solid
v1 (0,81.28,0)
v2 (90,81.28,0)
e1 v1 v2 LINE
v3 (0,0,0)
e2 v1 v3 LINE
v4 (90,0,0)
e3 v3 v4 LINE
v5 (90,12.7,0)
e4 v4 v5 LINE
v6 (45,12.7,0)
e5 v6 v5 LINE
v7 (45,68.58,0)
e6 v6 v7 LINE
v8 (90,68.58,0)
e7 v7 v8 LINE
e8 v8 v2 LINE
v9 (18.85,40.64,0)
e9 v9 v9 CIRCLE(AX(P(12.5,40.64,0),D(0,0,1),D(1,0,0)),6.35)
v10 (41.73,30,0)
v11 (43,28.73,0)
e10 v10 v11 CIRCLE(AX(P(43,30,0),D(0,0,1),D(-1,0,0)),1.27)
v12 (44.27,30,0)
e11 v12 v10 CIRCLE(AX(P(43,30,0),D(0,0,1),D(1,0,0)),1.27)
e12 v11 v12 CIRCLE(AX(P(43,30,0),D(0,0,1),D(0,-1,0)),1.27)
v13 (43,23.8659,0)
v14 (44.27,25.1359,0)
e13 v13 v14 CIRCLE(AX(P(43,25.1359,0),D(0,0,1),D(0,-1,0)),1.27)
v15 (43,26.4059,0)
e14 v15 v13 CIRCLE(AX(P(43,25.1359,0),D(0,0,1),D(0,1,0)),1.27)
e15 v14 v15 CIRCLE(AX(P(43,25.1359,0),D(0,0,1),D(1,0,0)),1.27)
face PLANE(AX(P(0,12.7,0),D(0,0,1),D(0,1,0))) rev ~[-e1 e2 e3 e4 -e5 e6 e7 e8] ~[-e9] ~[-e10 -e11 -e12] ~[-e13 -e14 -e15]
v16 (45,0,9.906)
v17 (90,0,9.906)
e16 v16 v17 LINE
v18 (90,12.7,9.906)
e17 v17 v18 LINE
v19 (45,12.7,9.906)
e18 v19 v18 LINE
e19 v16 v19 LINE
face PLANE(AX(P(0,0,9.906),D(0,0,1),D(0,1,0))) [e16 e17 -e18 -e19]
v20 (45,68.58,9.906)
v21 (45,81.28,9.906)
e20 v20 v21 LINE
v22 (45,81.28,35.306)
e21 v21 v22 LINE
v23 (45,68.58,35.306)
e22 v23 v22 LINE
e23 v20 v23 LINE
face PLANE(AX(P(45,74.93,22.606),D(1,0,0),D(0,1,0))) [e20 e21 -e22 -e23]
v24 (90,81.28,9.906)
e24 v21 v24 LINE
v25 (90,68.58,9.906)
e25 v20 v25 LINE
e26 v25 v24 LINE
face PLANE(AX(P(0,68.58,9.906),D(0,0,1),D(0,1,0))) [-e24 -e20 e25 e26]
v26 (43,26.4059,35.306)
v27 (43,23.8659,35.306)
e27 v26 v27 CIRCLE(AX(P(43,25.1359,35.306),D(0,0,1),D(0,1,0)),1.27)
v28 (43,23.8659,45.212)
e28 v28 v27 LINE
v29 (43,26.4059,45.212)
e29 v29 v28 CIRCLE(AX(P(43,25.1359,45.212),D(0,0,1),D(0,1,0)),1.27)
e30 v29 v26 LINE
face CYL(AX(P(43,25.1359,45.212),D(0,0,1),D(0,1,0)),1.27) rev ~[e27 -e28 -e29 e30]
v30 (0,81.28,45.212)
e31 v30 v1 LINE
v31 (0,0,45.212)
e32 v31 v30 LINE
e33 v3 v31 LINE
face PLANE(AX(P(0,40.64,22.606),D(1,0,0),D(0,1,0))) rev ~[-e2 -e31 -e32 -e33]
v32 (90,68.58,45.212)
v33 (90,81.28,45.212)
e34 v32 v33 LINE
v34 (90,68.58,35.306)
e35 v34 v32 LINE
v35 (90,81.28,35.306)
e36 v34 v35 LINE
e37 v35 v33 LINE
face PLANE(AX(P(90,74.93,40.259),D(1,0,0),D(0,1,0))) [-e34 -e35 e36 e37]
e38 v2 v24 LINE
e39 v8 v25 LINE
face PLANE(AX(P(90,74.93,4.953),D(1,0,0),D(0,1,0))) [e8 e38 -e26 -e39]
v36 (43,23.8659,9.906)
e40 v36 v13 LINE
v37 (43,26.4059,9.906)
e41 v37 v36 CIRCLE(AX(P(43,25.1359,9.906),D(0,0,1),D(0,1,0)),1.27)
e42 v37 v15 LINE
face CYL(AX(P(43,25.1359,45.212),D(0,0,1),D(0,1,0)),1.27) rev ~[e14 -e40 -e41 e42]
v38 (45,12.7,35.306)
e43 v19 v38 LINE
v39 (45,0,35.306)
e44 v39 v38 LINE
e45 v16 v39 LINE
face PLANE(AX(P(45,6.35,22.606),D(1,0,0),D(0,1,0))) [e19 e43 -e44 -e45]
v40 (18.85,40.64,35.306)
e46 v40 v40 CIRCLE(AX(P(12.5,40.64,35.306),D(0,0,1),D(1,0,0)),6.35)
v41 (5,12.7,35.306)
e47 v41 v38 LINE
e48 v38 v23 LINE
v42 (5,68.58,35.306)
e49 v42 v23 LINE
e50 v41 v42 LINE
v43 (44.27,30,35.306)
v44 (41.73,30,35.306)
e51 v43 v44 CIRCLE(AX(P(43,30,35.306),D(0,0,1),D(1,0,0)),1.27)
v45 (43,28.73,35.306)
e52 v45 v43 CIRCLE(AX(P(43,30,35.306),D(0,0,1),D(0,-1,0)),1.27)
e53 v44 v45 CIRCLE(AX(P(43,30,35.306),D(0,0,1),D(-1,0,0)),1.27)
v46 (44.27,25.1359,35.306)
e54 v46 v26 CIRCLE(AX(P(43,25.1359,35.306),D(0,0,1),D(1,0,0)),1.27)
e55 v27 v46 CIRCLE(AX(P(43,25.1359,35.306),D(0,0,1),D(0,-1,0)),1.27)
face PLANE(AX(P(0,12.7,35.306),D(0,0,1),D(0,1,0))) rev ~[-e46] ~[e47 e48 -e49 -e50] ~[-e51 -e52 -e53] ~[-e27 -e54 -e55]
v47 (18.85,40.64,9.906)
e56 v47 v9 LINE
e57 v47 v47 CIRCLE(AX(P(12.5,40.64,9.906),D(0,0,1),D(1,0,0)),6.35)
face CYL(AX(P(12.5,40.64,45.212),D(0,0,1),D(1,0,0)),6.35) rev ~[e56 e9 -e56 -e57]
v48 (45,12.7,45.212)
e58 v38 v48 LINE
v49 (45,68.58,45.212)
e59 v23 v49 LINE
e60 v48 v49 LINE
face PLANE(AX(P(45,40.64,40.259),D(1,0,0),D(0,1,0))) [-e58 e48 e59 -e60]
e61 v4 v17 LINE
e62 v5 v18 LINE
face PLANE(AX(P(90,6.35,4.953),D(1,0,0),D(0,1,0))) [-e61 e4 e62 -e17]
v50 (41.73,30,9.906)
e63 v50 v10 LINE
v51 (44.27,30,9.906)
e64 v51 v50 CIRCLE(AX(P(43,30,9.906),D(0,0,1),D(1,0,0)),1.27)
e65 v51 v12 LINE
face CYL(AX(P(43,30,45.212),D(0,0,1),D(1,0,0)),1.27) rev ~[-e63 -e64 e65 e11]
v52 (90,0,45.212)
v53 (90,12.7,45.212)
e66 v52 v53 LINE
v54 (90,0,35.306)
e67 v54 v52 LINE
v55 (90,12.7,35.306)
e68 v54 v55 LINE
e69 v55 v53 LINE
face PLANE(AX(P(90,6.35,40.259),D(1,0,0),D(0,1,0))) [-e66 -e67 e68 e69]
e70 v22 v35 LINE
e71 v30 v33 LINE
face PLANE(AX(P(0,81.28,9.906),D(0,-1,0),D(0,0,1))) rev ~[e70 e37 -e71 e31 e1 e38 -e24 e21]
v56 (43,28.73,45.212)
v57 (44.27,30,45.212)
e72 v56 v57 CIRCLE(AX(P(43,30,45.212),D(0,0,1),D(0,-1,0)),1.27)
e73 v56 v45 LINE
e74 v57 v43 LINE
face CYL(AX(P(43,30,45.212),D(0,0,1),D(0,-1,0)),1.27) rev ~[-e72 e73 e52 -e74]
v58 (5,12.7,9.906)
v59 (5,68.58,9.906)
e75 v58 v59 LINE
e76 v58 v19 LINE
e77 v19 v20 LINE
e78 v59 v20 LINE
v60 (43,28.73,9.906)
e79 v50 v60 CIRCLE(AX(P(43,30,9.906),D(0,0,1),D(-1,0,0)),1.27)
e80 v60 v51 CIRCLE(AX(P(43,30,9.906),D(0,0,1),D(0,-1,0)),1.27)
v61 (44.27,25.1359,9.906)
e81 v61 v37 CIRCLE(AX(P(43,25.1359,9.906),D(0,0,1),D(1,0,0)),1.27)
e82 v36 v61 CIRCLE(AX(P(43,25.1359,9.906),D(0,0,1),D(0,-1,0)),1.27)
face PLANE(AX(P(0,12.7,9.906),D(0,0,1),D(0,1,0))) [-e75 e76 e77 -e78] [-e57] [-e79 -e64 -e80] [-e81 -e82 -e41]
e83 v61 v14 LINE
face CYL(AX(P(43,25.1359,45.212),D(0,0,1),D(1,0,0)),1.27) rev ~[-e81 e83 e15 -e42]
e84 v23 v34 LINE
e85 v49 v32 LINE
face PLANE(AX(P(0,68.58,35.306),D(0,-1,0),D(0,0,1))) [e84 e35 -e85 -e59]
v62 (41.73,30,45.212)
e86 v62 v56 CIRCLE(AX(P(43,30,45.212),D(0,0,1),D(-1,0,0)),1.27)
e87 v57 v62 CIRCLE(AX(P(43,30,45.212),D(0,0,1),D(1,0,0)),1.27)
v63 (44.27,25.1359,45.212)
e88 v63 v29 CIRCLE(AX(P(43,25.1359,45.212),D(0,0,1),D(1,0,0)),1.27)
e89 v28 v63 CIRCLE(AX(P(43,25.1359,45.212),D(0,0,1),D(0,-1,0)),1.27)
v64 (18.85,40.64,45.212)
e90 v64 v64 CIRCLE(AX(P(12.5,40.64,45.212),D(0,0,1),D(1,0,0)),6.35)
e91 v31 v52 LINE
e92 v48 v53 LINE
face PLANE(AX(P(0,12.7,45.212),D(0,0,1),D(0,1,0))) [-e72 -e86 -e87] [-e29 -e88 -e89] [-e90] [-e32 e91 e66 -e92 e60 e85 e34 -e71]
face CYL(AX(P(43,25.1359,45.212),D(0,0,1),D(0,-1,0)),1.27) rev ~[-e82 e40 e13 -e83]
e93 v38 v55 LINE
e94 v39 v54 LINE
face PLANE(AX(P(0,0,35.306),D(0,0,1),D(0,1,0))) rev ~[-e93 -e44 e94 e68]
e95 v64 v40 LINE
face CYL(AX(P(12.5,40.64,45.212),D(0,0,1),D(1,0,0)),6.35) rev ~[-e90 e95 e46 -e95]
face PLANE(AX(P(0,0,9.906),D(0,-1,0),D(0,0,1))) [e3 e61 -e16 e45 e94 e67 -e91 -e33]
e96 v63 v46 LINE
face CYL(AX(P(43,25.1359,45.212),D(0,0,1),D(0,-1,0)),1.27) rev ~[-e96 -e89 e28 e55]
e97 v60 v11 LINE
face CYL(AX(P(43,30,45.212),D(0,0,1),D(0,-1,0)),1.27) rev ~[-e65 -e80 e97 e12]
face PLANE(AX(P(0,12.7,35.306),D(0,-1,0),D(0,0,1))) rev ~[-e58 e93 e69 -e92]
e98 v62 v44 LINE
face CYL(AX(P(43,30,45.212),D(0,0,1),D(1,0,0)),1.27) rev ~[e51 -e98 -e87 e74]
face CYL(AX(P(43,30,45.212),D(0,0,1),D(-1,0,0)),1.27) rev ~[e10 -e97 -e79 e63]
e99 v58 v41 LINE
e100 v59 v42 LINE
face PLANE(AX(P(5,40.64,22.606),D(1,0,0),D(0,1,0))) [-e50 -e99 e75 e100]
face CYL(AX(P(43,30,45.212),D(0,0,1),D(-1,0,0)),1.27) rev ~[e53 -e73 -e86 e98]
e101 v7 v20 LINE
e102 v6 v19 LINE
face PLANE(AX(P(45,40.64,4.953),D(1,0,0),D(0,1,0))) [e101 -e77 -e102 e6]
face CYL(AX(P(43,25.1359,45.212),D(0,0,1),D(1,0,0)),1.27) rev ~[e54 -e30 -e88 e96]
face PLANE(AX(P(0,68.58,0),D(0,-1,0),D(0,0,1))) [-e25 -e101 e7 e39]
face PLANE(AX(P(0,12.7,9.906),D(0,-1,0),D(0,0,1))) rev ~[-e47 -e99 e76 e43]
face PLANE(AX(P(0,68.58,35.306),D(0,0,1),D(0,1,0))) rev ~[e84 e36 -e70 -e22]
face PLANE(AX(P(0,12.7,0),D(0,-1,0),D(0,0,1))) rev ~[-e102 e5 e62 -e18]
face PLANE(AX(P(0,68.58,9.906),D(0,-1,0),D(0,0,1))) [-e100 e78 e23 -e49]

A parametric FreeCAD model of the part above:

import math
import FreeCAD as App
import Part
import Sketcher

V = App.Vector
Q = App.Units.Quantity

doc = App.newDocument("Part")
body = doc.addObject("PartDesign::Body", "Body")

# Sketch on YZ plane
sketch1 = body.newObject("Sketcher::SketchObject", "Sketch")
sketch1.AttachmentSupport = (doc.getObject("YZ_Plane"), [""])
sketch1.MapMode = "FlatFace"
sketch1.addGeometry([
    Part.LineSegment(V(68.58, 9.906, 0), V(68.58, 0, 0)),
    Part.LineSegment(V(68.58, 0, 0), V(81.28, 0, 0)),
    Part.LineSegment(V(81.28, 0, 0), V(81.28, 9.906, 0)),
    Part.LineSegment(V(81.28, 9.906, 0), V(68.58, 9.906, 0)),
], False)
sketch1.addConstraint([
    Sketcher.Constraint("Coincident", 0, 2, 1, 1),
    Sketcher.Constraint("Coincident", 1, 2, 2, 1),
    Sketcher.Constraint("Coincident", 2, 2, 3, 1),
    Sketcher.Constraint("Coincident", 3, 2, 0, 1),
    Sketcher.Constraint("Vertical", 0),
    Sketcher.Constraint("Horizontal", 1),
    Sketcher.Constraint("Vertical", 2),
    Sketcher.Constraint("Horizontal", 3),
    Sketcher.Constraint("PointOnObject", 0, 2, -1),
    Sketcher.Constraint("DistanceX", 1, 1, 1, 2, Q("0.5 in")),
    Sketcher.Constraint("DistanceY", 0, 2, 0, 1, Q("0.39 in")),
    Sketcher.Constraint("DistanceX", -1, 1, 0, 2, Q("2.7 in")),
])
pad1 = body.newObject("PartDesign::Pad", "Pad")
pad1.Profile = sketch1
pad1.Length = 90
body2 = doc.addObject("PartDesign::Body", "Body001")

# Sketch on YZ plane
sketch2 = body2.newObject("Sketcher::SketchObject", "Sketch001")
sketch2.AttachmentSupport = (doc.getObject("YZ_Plane001"), [""])
sketch2.MapMode = "FlatFace"
sketch2.addGeometry([
    Part.LineSegment(V(0, 45.212, 0), V(0, 35.306, 0)),
    Part.LineSegment(V(0, 35.306, 0), V(12.7, 35.306, 0)),
    Part.LineSegment(V(12.7, 35.306, 0), V(12.7, 45.212, 0)),
    Part.LineSegment(V(12.7, 45.212, 0), V(0, 45.212, 0)),
], False)
sketch2.addConstraint([
    Sketcher.Constraint("Coincident", 0, 2, 1, 1),
    Sketcher.Constraint("Coincident", 1, 2, 2, 1),
    Sketcher.Constraint("Coincident", 2, 2, 3, 1),
    Sketcher.Constraint("Coincident", 3, 2, 0, 1),
    Sketcher.Constraint("Vertical", 0),
    Sketcher.Constraint("Horizontal", 1),
    Sketcher.Constraint("Vertical", 2),
    Sketcher.Constraint("Horizontal", 3),
    Sketcher.Constraint("PointOnObject", 0, 2, -2),
    Sketcher.Constraint("DistanceX", 1, 1, 1, 2, Q("0.5 in")),
    Sketcher.Constraint("DistanceY", 0, 2, 0, 1, Q("0.39 in")),
    Sketcher.Constraint("DistanceY", -1, 1, 0, 2, Q("1.39 in")),
])
pad2 = body2.newObject("PartDesign::Pad", "Pad001")
pad2.Profile = sketch2
pad2.Length = 90
body3 = doc.addObject("PartDesign::Body", "Body002")

# Sketch on YZ plane
sketch3 = body3.newObject("Sketcher::SketchObject", "Sketch002")
sketch3.AttachmentSupport = (doc.getObject("YZ_Plane002"), [""])
sketch3.MapMode = "FlatFace"
sketch3.addGeometry([
    Part.LineSegment(V(0, 9.906, 0), V(0, 0, 0)),
    Part.LineSegment(V(0, 0, 0), V(12.7, 0, 0)),
    Part.LineSegment(V(12.7, 0, 0), V(12.7, 9.906, 0)),
    Part.LineSegment(V(12.7, 9.906, 0), V(0, 9.906, 0)),
], False)
sketch3.addConstraint([
    Sketcher.Constraint("Coincident", 0, 2, 1, 1),
    Sketcher.Constraint("Coincident", 1, 2, 2, 1),
    Sketcher.Constraint("Coincident", 2, 2, 3, 1),
    Sketcher.Constraint("Coincident", 3, 2, 0, 1),
    Sketcher.Constraint("Vertical", 0),
    Sketcher.Constraint("Horizontal", 1),
    Sketcher.Constraint("Vertical", 2),
    Sketcher.Constraint("Horizontal", 3),
    Sketcher.Constraint("Coincident", 0, 2, -1, 1),
    Sketcher.Constraint("DistanceX", 1, 1, 1, 2, Q("0.5 in")),
    Sketcher.Constraint("DistanceY", 0, 2, 0, 1, Q("0.39 in")),
])
pad3 = body3.newObject("PartDesign::Pad", "Pad002")
pad3.Profile = sketch3
pad3.Length = 90
body4 = doc.addObject("PartDesign::Body", "Body003")

# Sketch on YZ plane
sketch4 = body4.newObject("Sketcher::SketchObject", "Sketch003")
sketch4.AttachmentSupport = (doc.getObject("YZ_Plane003"), [""])
sketch4.MapMode = "FlatFace"
sketch4.addGeometry([
    Part.LineSegment(V(68.58, 45.212, 0), V(68.58, 35.306, 0)),
    Part.LineSegment(V(68.58, 35.306, 0), V(81.28, 35.306, 0)),
    Part.LineSegment(V(81.28, 35.306, 0), V(81.28, 45.212, 0)),
    Part.LineSegment(V(81.28, 45.212, 0), V(68.58, 45.212, 0)),
], False)
sketch4.addConstraint([
    Sketcher.Constraint("Coincident", 0, 2, 1, 1),
    Sketcher.Constraint("Coincident", 1, 2, 2, 1),
    Sketcher.Constraint("Coincident", 2, 2, 3, 1),
    Sketcher.Constraint("Coincident", 3, 2, 0, 1),
    Sketcher.Constraint("Vertical", 0),
    Sketcher.Constraint("Horizontal", 1),
    Sketcher.Constraint("Vertical", 2),
    Sketcher.Constraint("Horizontal", 3),
    Sketcher.Constraint("DistanceX", 1, 1, 1, 2, Q("0.5 in")),
    Sketcher.Constraint("DistanceY", 0, 2, 0, 1, Q("0.39 in")),
    Sketcher.Constraint("DistanceX", -1, 1, 0, 2, Q("2.7 in")),
    Sketcher.Constraint("DistanceY", -1, 1, 0, 2, Q("1.39 in")),
])
pad4 = body4.newObject("PartDesign::Pad", "Pad003")
pad4.Profile = sketch4
pad4.Length = 90
body.AllowCompound = True
doc.recompute()

boolean = body.newObject("PartDesign::Boolean", "Boolean")
boolean.Type = "Fuse"
boolean.addObjects([body2])
doc.recompute()

boolean2 = body.newObject("PartDesign::Boolean", "Boolean001")
boolean2.Type = "Fuse"
boolean2.addObjects([body3])
doc.recompute()

boolean3 = body.newObject("PartDesign::Boolean", "Boolean002")
boolean3.Type = "Fuse"
boolean3.addObjects([body4])

# Sketch on YZ plane
sketch5 = body.newObject("Sketcher::SketchObject", "Sketch004")
sketch5.AttachmentSupport = (doc.getObject("YZ_Plane"), [""])
sketch5.MapMode = "FlatFace"
sketch5.addGeometry([
    Part.LineSegment(V(12.7, 45.212, 0), V(12.7, 35.306, 0)),  # 0
    Part.LineSegment(V(12.7, 35.306, 0), V(68.58, 35.306, 0)),  # 1
    Part.LineSegment(V(68.58, 35.306, 0), V(68.58, 45.212, 0)),  # 2
    Part.LineSegment(V(68.58, 45.212, 0), V(12.7, 45.212, 0)),  # 3
    Part.LineSegment(V(0, 35.306, 0), V(0, 9.906, 0)),  # 4
    Part.LineSegment(V(0, 9.906, 0), V(12.7, 9.906, 0)),  # 5
    Part.LineSegment(V(12.7, 9.906, 0), V(12.7, 35.306, 0)),  # 6
    Part.LineSegment(V(12.7, 35.306, 0), V(0, 35.306, 0)),  # 7
    Part.LineSegment(V(68.58, 35.306, 0), V(68.58, 9.906, 0)),  # 8
    Part.LineSegment(V(68.58, 9.906, 0), V(81.28, 9.906, 0)),  # 9
    Part.LineSegment(V(81.28, 9.906, 0), V(81.28, 35.306, 0)),  # 10
    Part.LineSegment(V(81.28, 35.306, 0), V(68.58, 35.306, 0)),  # 11
    Part.LineSegment(V(12.7, 9.906, 0), V(12.7, 0, 0)),  # 12
    Part.LineSegment(V(12.7, 0, 0), V(68.58, 0, 0)),  # 13
    Part.LineSegment(V(68.58, 0, 0), V(68.58, 9.906, 0)),  # 14
    Part.LineSegment(V(68.58, 9.906, 0), V(12.7, 9.906, 0)),  # 15
], False)
sketch5.addConstraint([
    Sketcher.Constraint("Coincident", 0, 2, 1, 1),
    Sketcher.Constraint("Coincident", 1, 2, 2, 1),
    Sketcher.Constraint("Coincident", 2, 2, 3, 1),
    Sketcher.Constraint("Coincident", 3, 2, 0, 1),
    Sketcher.Constraint("Coincident", 4, 2, 5, 1),
    Sketcher.Constraint("Coincident", 5, 2, 6, 1),
    Sketcher.Constraint("Coincident", 6, 2, 7, 1),
    Sketcher.Constraint("Coincident", 7, 2, 4, 1),
    Sketcher.Constraint("Coincident", 8, 2, 9, 1),
    Sketcher.Constraint("Coincident", 9, 2, 10, 1),
    Sketcher.Constraint("Coincident", 10, 2, 11, 1),
    Sketcher.Constraint("Coincident", 11, 2, 8, 1),
    Sketcher.Constraint("Coincident", 12, 2, 13, 1),
    Sketcher.Constraint("Coincident", 13, 2, 14, 1),
    Sketcher.Constraint("Coincident", 14, 2, 15, 1),
    Sketcher.Constraint("Coincident", 15, 2, 12, 1),
    Sketcher.Constraint("Vertical", 0),
    Sketcher.Constraint("Horizontal", 1),
    Sketcher.Constraint("Vertical", 2),
    Sketcher.Constraint("Horizontal", 3),
    Sketcher.Constraint("Vertical", 4),
    Sketcher.Constraint("Horizontal", 5),
    Sketcher.Constraint("Vertical", 6),
    Sketcher.Constraint("Horizontal", 7),
    Sketcher.Constraint("Vertical", 8),
    Sketcher.Constraint("Horizontal", 9),
    Sketcher.Constraint("Vertical", 10),
    Sketcher.Constraint("Horizontal", 11),
    Sketcher.Constraint("Vertical", 12),
    Sketcher.Constraint("Horizontal", 13),
    Sketcher.Constraint("Vertical", 14),
    Sketcher.Constraint("Horizontal", 15),
    Sketcher.Constraint("Coincident", 6, 2, 0, 2),
    Sketcher.Constraint("Coincident", 11, 2, 1, 2),
    Sketcher.Constraint("Coincident", 14, 2, 8, 2),
    Sketcher.Constraint("Coincident", 15, 2, 5, 2),
    Sketcher.Constraint("PointOnObject", 4, 2, -2),
    Sketcher.Constraint("PointOnObject", 12, 2, -1),
    Sketcher.Constraint("Equal", 7, 9),
    Sketcher.Constraint("Equal", 2, 12),
    Sketcher.Constraint("DistanceY", 4, 2, 4, 1, Q("1 in")),
    Sketcher.Constraint("DistanceX", 1, 1, 1, 2, Q("2.2 in")),
    Sketcher.Constraint("DistanceX", 5, 1, 5, 2, Q("0.5 in")),
    Sketcher.Constraint("DistanceY", 0, 2, 0, 1, Q("0.39 in")),
])
pad5 = body.newObject("PartDesign::Pad", "Pad004")
pad5.Profile = sketch5
pad5.Length = 45

# Sketch on YZ plane
sketch6 = body.newObject("Sketcher::SketchObject", "Sketch005")
sketch6.AttachmentSupport = (doc.getObject("YZ_Plane"), [""])
sketch6.MapMode = "FlatFace"
sketch6.addGeometry([
    Part.LineSegment(V(12.7, 35.306, 0), V(12.7, 9.906, 0)),
    Part.LineSegment(V(12.7, 9.906, 0), V(68.58, 9.906, 0)),
    Part.LineSegment(V(68.58, 9.906, 0), V(68.58, 35.306, 0)),
    Part.LineSegment(V(68.58, 35.306, 0), V(12.7, 35.306, 0)),
], False)
sketch6.addConstraint([
    Sketcher.Constraint("Coincident", 0, 2, 1, 1),
    Sketcher.Constraint("Coincident", 1, 2, 2, 1),
    Sketcher.Constraint("Coincident", 2, 2, 3, 1),
    Sketcher.Constraint("Coincident", 3, 2, 0, 1),
    Sketcher.Constraint("Vertical", 0),
    Sketcher.Constraint("Horizontal", 1),
    Sketcher.Constraint("Vertical", 2),
    Sketcher.Constraint("Horizontal", 3),
    Sketcher.Constraint("DistanceY", 0, 2, 0, 1, Q("1 in")),
    Sketcher.Constraint("DistanceX", 1, 1, 1, 2, Q("2.2 in")),
    Sketcher.Constraint("DistanceX", -1, 1, 0, 2, Q("0.5 in")),
    Sketcher.Constraint("DistanceY", -1, 1, 0, 2, Q("0.39 in")),
])
pad6 = body.newObject("PartDesign::Pad", "Pad005")
pad6.Profile = sketch6
pad6.Length = 5

# Sketch on XY plane
sketch7 = body.newObject("Sketcher::SketchObject", "Sketch006")
sketch7.AttachmentSupport = (doc.getObject("XY_Plane"), [""])
sketch7.MapMode = "FlatFace"
sketch7.AttachmentOffset = App.Placement(V(0, 0, 1.78 * 25.4), App.Rotation())
sketch7.addGeometry([
    Part.ArcOfCircle(Part.Circle(V(43, 30, 0), V(0, 0, 1), 1.27), math.radians(0), math.radians(180)),  # 0
    Part.ArcOfCircle(Part.Circle(V(43, 30, 0), V(0, 0, 1), 1.27), math.radians(180), math.radians(270)),  # 1
    Part.ArcOfCircle(Part.Circle(V(43, 30, 0), V(0, 0, 1), 1.27), math.radians(-90), math.radians(0)),  # 2
    Part.Circle(V(12.5, 40.64, 0), V(0, 0, 1), 6.35),  # 3
    Part.ArcOfCircle(Part.Circle(V(43, 25.1359, 0), V(0, 0, 1), 1.27), math.radians(0), math.radians(90)),  # 4
    Part.ArcOfCircle(Part.Circle(V(43, 25.1359, 0), V(0, 0, 1), 1.27), math.radians(90), math.radians(270)),  # 5
    Part.ArcOfCircle(Part.Circle(V(43, 25.1359, 0), V(0, 0, 1), 1.27), math.radians(-90), math.radians(0)),  # 6
], False)
sketch7.addConstraint([
    Sketcher.Constraint("Tangent", 0, 2, 1, 1),
    Sketcher.Constraint("Tangent", 1, 2, 2, 1),
    Sketcher.Constraint("Tangent", 2, 2, 0, 1),
    Sketcher.Constraint("Tangent", 4, 2, 5, 1),
    Sketcher.Constraint("Tangent", 5, 2, 6, 1),
    Sketcher.Constraint("Tangent", 6, 2, 4, 1),
    Sketcher.Constraint("Equal", 2, 4),
    Sketcher.Constraint("Horizontal", 2, 3, 0, 2),
    Sketcher.Constraint("Horizontal", 0, 2, 2, 2),
    Sketcher.Constraint("Horizontal", 5, 3, 6, 2),
    Sketcher.Constraint("Vertical", 2, 3, 4, 3),
    Sketcher.Constraint("Vertical", 6, 3, 1, 2),
    Sketcher.Constraint("Vertical", 1, 2, 4, 2),
    Sketcher.Constraint("Vertical", 4, 2, 5, 2),
    Sketcher.Constraint("Diameter", 3, Q("0.5 in")),
    Sketcher.Constraint("Radius", 0, Q("0.05 in")),
    Sketcher.Constraint("DistanceY", -1, 1, 3, 3, Q("1.6 in")),
    Sketcher.Constraint("DistanceY", 4, 3, 0, 3, Q("0.1915 in")),
    Sketcher.Constraint("DistanceX", -1, 1, 0, 3, 43.0),
    Sketcher.Constraint("DistanceY", -1, 1, 0, 3, 30.0),
    Sketcher.Constraint("DistanceX", -1, 1, 3, 3, 12.5),
])
pocket1 = body.newObject("PartDesign::Pocket", "Pocket")
pocket1.Profile = sketch7
pocket1.Type = "ThroughAll"

doc.recompute()
